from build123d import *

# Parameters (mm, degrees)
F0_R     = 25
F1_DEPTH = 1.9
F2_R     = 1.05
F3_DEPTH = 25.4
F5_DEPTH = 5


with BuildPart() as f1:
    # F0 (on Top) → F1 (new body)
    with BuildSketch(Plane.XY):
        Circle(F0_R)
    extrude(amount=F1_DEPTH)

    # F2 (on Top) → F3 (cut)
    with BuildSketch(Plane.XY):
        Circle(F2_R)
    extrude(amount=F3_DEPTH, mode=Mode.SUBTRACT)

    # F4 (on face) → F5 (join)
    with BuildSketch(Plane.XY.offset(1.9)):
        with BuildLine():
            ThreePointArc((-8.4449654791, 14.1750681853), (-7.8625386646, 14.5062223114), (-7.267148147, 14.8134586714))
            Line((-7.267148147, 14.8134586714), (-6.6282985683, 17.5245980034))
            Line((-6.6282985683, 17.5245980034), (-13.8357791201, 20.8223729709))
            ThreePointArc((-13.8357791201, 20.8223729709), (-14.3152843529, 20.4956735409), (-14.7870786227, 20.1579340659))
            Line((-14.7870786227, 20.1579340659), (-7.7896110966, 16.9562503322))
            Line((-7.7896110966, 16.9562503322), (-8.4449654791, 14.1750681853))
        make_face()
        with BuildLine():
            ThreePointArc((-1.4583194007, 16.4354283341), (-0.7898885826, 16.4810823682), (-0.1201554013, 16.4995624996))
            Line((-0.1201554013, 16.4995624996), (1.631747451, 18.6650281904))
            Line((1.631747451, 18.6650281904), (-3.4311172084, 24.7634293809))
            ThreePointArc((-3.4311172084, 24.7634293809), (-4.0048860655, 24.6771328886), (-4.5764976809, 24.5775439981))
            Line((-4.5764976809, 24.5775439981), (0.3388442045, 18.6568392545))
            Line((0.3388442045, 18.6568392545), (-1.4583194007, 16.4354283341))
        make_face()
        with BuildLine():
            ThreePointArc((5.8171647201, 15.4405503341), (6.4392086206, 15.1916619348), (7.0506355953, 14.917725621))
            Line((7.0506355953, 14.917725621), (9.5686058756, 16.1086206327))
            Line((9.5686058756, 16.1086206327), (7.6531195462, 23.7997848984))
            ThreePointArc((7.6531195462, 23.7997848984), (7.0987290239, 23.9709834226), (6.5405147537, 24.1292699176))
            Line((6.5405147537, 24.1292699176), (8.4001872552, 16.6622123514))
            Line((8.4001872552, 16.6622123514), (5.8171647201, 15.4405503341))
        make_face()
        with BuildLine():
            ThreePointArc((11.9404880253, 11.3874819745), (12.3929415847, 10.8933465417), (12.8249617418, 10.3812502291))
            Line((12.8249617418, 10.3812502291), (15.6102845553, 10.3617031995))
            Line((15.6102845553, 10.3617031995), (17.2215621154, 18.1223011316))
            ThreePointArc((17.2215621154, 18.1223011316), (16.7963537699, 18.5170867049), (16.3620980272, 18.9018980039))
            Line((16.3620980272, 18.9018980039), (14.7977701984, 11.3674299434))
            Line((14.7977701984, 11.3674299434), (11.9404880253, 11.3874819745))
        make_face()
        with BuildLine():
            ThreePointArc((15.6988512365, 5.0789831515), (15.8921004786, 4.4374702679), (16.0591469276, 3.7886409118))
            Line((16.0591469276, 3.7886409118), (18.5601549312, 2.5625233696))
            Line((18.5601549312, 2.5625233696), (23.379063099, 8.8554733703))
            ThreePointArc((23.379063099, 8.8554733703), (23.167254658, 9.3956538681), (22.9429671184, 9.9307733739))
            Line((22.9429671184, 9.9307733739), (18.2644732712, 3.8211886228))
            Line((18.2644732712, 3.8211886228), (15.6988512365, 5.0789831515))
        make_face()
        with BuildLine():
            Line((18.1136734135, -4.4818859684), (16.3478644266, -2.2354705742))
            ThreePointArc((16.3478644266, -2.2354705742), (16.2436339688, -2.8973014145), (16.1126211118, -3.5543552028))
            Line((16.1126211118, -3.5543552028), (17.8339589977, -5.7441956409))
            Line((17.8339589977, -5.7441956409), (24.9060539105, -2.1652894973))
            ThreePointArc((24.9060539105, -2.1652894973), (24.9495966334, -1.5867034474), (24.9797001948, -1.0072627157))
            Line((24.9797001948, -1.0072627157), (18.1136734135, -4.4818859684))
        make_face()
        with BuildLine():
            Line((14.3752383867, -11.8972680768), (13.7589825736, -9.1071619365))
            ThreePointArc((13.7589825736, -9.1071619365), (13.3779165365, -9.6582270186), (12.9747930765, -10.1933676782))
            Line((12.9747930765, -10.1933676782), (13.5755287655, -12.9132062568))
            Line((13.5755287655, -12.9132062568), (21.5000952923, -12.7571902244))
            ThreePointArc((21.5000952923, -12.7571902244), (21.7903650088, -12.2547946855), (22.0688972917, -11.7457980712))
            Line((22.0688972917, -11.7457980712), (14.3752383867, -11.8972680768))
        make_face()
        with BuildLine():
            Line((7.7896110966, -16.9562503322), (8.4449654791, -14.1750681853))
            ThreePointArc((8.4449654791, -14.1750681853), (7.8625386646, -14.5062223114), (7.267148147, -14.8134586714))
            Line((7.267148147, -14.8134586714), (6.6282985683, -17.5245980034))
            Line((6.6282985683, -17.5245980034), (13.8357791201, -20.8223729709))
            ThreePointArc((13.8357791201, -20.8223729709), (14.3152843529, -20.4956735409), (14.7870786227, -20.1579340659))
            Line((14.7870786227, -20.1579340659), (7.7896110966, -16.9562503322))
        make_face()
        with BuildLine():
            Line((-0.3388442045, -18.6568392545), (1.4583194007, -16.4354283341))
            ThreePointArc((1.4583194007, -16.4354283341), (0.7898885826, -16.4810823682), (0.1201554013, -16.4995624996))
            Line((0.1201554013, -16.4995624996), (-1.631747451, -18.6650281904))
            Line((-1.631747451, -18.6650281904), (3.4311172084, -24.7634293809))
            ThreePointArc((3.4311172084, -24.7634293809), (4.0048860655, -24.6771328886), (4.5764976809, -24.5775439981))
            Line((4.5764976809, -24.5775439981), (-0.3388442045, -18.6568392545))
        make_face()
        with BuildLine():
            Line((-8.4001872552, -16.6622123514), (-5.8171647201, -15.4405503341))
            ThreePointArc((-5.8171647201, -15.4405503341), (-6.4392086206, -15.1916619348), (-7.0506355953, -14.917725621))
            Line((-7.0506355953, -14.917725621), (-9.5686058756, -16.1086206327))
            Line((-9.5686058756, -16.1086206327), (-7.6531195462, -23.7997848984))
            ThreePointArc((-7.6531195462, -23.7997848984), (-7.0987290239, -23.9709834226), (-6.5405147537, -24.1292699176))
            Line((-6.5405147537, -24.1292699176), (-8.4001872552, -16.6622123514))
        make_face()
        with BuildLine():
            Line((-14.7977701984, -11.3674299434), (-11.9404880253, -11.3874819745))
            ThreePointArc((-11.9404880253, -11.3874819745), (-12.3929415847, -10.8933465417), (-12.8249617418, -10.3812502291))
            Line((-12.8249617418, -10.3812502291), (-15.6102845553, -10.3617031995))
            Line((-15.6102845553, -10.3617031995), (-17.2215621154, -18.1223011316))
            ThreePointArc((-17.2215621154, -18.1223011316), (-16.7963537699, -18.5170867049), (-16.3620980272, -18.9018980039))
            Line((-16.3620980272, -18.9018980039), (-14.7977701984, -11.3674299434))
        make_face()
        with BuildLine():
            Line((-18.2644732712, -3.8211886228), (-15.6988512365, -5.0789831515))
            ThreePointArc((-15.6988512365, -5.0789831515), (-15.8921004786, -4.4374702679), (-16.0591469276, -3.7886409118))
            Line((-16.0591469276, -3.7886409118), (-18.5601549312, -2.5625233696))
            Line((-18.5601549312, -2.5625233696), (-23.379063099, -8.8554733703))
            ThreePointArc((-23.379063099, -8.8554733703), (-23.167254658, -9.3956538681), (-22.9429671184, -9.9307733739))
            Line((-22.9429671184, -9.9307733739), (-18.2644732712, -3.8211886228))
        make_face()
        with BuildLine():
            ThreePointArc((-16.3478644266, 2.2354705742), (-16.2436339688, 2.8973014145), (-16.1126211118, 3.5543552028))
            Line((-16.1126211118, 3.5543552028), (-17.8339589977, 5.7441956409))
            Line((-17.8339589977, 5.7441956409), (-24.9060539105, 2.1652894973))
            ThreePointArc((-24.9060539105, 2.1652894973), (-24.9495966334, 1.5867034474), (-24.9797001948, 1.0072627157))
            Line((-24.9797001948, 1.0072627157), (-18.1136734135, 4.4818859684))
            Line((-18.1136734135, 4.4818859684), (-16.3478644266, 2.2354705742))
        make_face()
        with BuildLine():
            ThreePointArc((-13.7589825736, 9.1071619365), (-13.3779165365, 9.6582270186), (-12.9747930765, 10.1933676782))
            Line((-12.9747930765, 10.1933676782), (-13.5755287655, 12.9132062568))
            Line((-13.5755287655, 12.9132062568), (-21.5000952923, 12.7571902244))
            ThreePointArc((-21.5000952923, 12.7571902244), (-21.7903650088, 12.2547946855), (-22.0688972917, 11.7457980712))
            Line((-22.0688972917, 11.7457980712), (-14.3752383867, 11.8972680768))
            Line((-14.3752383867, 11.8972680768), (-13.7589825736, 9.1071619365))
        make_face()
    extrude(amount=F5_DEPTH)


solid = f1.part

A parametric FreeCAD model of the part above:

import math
import FreeCAD as App
import Part
import Sketcher

doc = App.newDocument("Part")
params = doc.addObject("Spreadsheet::Sheet", "Params")
for row, (alias, value) in enumerate([
    ("sketch1_diameter", "50 mm"),
    ("pad1_length", "1.9 mm"),
    ("sketch2_diameter", "2.1 mm"),
    ("pocket1_length", "25.4 mm"),
    ("sketch3_radius", "25 mm"),
    ("sketch3_radius2", "16.5 mm"),
    ("pad2_length", "5 mm"),
], start=1):
    params.set(f"A{row}", alias)
    params.set(f"B{row}", "=" + value)
    params.setAlias(f"B{row}", alias)

body = doc.addObject("PartDesign::Body", "Body")

# Sketch on XY plane
sketch1 = body.newObject("Sketcher::SketchObject", "Sketch")
sketch1.AttachmentSupport = (doc.getObject("XY_Plane"), [""])
sketch1.MapMode = "FlatFace"
sketch1.addGeometry(Part.Circle(App.Vector(0, 0, 0), App.Vector(0, 0, 1), 25), False)
sketch1.addConstraint(Sketcher.Constraint("Coincident", 0, 3, -1, 1))
sketch1.addConstraint(Sketcher.Constraint("Diameter", 0, 50.0))
sketch1.setExpression("Constraints[1]", "Params.sketch1_diameter")
pad1 = body.newObject("PartDesign::Pad", "Pad")
pad1.Profile = sketch1
pad1.setExpression("Length", "Params.pad1_length")

# Sketch on XY plane
sketch2 = body.newObject("Sketcher::SketchObject", "Sketch001")
sketch2.AttachmentSupport = (doc.getObject("XY_Plane"), [""])
sketch2.MapMode = "FlatFace"
sketch2.addGeometry(Part.Circle(App.Vector(0, 0, 0), App.Vector(0, 0, 1), 1.1), False)
sketch2.addConstraint(Sketcher.Constraint("Coincident", 0, 3, -1, 1))
sketch2.addConstraint(Sketcher.Constraint("Diameter", 0, 2.1))
sketch2.setExpression("Constraints[1]", "Params.sketch2_diameter")
pocket1 = body.newObject("PartDesign::Pocket", "Pocket")
pocket1.Profile = sketch2
pocket1.setExpression("Length", "Params.pocket1_length")
pocket1.Reversed = True

# Sketch on XY plane
sketch3 = body.newObject("Sketcher::SketchObject", "Sketch002")
sketch3.AttachmentSupport = (doc.getObject("XY_Plane"), [""])
sketch3.MapMode = "FlatFace"
sketch3.AttachmentOffset = App.Placement(App.Vector(0, 0, 1.9), App.Rotation())
sketch3.addGeometry(Part.ArcOfCircle(Part.Circle(App.Vector(0, 0, 0), App.Vector(0, 0, 1), 16.5), math.radians(116.13), math.radians(120.78)), False)
sketch3.addGeometry(Part.LineSegment(App.Vector(-7.3, 14.8, 0), App.Vector(-6.6, 17.5, 0)), False)
sketch3.addGeometry(Part.LineSegment(App.Vector(-6.6, 17.5, 0), App.Vector(-13.8, 20.8, 0)), False)
sketch3.addGeometry(Part.ArcOfCircle(Part.Circle(App.Vector(0, 0, 0), App.Vector(0, 0, 1), 25), math.radians(123.6), math.radians(126.26)), False)
sketch3.addGeometry(Part.LineSegment(App.Vector(-14.8, 20.2, 0), App.Vector(-7.8, 17, 0)), False)
sketch3.addGeometry(Part.LineSegment(App.Vector(-7.8, 17, 0), App.Vector(-8.4, 14.2, 0)), False)
sketch3.addGeometry(Part.ArcOfCircle(Part.Circle(App.Vector(0, 0, 0), App.Vector(0, 0, 1), 16.5), math.radians(90.42), math.radians(95.07)), False)
sketch3.addGeometry(Part.LineSegment(App.Vector(-0.1, 16.5, 0), App.Vector(1.6, 18.7, 0)), False)
sketch3.addGeometry(Part.LineSegment(App.Vector(1.6, 18.7, 0), App.Vector(-3.4, 24.8, 0)), False)
sketch3.addGeometry(Part.ArcOfCircle(Part.Circle(App.Vector(0, 0, 0), App.Vector(0, 0, 1), 25), math.radians(97.89), math.radians(100.55)), False)
sketch3.addGeometry(Part.LineSegment(App.Vector(-4.6, 24.6, 0), App.Vector(0.3, 18.7, 0)), False)
sketch3.addGeometry(Part.LineSegment(App.Vector(0.3, 18.7, 0), App.Vector(-1.5, 16.4, 0)), False)
sketch3.addGeometry(Part.ArcOfCircle(Part.Circle(App.Vector(0, 0, 0), App.Vector(0, 0, 1), 16.5), math.radians(64.7), math.radians(69.36)), False)
sketch3.addGeometry(Part.LineSegment(App.Vector(7.1, 14.9, 0), App.Vector(9.6, 16.1, 0)), False)
sketch3.addGeometry(Part.LineSegment(App.Vector(9.6, 16.1, 0), App.Vector(7.7, 23.8, 0)), False)
sketch3.addGeometry(Part.ArcOfCircle(Part.Circle(App.Vector(0, 0, 0), App.Vector(0, 0, 1), 25), math.radians(72.17), math.radians(74.83)), False)
sketch3.addGeometry(Part.LineSegment(App.Vector(6.5, 24.1, 0), App.Vector(8.4, 16.7, 0)), False)
sketch3.addGeometry(Part.LineSegment(App.Vector(8.4, 16.7, 0), App.Vector(5.8, 15.4, 0)), False)
sketch3.addGeometry(Part.ArcOfCircle(Part.Circle(App.Vector(0, 0, 0), App.Vector(0, 0, 1), 16.5), math.radians(38.99), math.radians(43.64)), False)
sketch3.addGeometry(Part.LineSegment(App.Vector(12.8, 10.4, 0), App.Vector(15.6, 10.4, 0)), False)
sketch3.addGeometry(Part.LineSegment(App.Vector(15.6, 10.4, 0), App.Vector(17.2, 18.1, 0)), False)
sketch3.addGeometry(Part.ArcOfCircle(Part.Circle(App.Vector(0, 0, 0), App.Vector(0, 0, 1), 25), math.radians(46.46), math.radians(49.12)), False)
sketch3.addGeometry(Part.LineSegment(App.Vector(16.4, 18.9, 0), App.Vector(14.8, 11.4, 0)), False)
sketch3.addGeometry(Part.LineSegment(App.Vector(14.8, 11.4, 0), App.Vector(11.9, 11.4, 0)), False)
sketch3.addGeometry(Part.ArcOfCircle(Part.Circle(App.Vector(0, 0, 0), App.Vector(0, 0, 1), 16.5), math.radians(13.27), math.radians(17.93)), False)
sketch3.addGeometry(Part.LineSegment(App.Vector(16.1, 3.8, 0), App.Vector(18.6, 2.6, 0)), False)
sketch3.addGeometry(Part.LineSegment(App.Vector(18.6, 2.6, 0), App.Vector(23.4, 8.9, 0)), False)
sketch3.addGeometry(Part.ArcOfCircle(Part.Circle(App.Vector(0, 0, 0), App.Vector(0, 0, 1), 25), math.radians(20.75), math.radians(23.41)), False)
sketch3.addGeometry(Part.LineSegment(App.Vector(22.9, 9.9, 0), App.Vector(18.3, 3.8, 0)), False)
sketch3.addGeometry(Part.LineSegment(App.Vector(18.3, 3.8, 0), App.Vector(15.7, 5.1, 0)), False)
sketch3.addGeometry(Part.LineSegment(App.Vector(18.1, -4.5, 0), App.Vector(16.3, -2.2, 0)), False)
sketch3.addGeometry(Part.ArcOfCircle(Part.Circle(App.Vector(0, 0, 0), App.Vector(0, 0, 1), 16.5), math.radians(-12.44), math.radians(-7.79)), False)
sketch3.addGeometry(Part.LineSegment(App.Vector(16.1, -3.6, 0), App.Vector(17.8, -5.7, 0)), False)
sketch3.addGeometry(Part.LineSegment(App.Vector(17.8, -5.7, 0), App.Vector(24.9, -2.2, 0)), False)
sketch3.addGeometry(Part.ArcOfCircle(Part.Circle(App.Vector(0, 0, 0), App.Vector(0, 0, 1), 25), math.radians(-4.97), math.radians(-2.31)), False)
sketch3.addGeometry(Part.LineSegment(App.Vector(25, -1, 0), App.Vector(18.1, -4.5, 0)), False)
sketch3.addGeometry(Part.LineSegment(App.Vector(14.4, -11.9, 0), App.Vector(13.8, -9.1, 0)), False)
sketch3.addGeometry(Part.ArcOfCircle(Part.Circle(App.Vector(0, 0, 0), App.Vector(0, 0, 1), 16.5), math.radians(-38.15), math.radians(-33.5)), False)
sketch3.addGeometry(Part.LineSegment(App.Vector(13, -10.2, 0), App.Vector(13.6, -12.9, 0)), False)
sketch3.addGeometry(Part.LineSegment(App.Vector(13.6, -12.9, 0), App.Vector(21.5, -12.8, 0)), False)
sketch3.addGeometry(Part.ArcOfCircle(Part.Circle(App.Vector(0, 0, 0), App.Vector(0, 0, 1), 25), math.radians(-30.68), math.radians(-28.02)), False)
sketch3.addGeometry(Part.LineSegment(App.Vector(22.1, -11.7, 0), App.Vector(14.4, -11.9, 0)), False)
sketch3.addGeometry(Part.LineSegment(App.Vector(7.8, -17, 0), App.Vector(8.4, -14.2, 0)), False)
sketch3.addGeometry(Part.ArcOfCircle(Part.Circle(App.Vector(0, 0, 0), App.Vector(0, 0, 1), 16.5), math.radians(-63.87), math.radians(-59.22)), False)
sketch3.addGeometry(Part.LineSegment(App.Vector(7.3, -14.8, 0), App.Vector(6.6, -17.5, 0)), False)
sketch3.addGeometry(Part.LineSegment(App.Vector(6.6, -17.5, 0), App.Vector(13.8, -20.8, 0)), False)
sketch3.addGeometry(Part.ArcOfCircle(Part.Circle(App.Vector(0, 0, 0), App.Vector(0, 0, 1), 25), math.radians(-56.4), math.radians(-53.74)), False)
sketch3.addGeometry(Part.LineSegment(App.Vector(14.8, -20.2, 0), App.Vector(7.8, -17, 0)), False)
sketch3.addGeometry(Part.LineSegment(App.Vector(-0.3, -18.7, 0), App.Vector(1.5, -16.4, 0)), False)
sketch3.addGeometry(Part.ArcOfCircle(Part.Circle(App.Vector(0, 0, 0), App.Vector(0, 0, 1), 16.5), math.radians(-89.58), math.radians(-84.93)), False)
sketch3.addGeometry(Part.LineSegment(App.Vector(0.1, -16.5, 0), App.Vector(-1.6, -18.7, 0)), False)
sketch3.addGeometry(Part.LineSegment(App.Vector(-1.6, -18.7, 0), App.Vector(3.4, -24.8, 0)), False)
sketch3.addGeometry(Part.ArcOfCircle(Part.Circle(App.Vector(0, 0, 0), App.Vector(0, 0, 1), 25), math.radians(-82.11), math.radians(-79.45)), False)
sketch3.addGeometry(Part.LineSegment(App.Vector(4.6, -24.6, 0), App.Vector(-0.3, -18.7, 0)), False)
sketch3.addGeometry(Part.LineSegment(App.Vector(-8.4, -16.7, 0), App.Vector(-5.8, -15.4, 0)), False)
sketch3.addGeometry(Part.ArcOfCircle(Part.Circle(App.Vector(0, 0, 0), App.Vector(0, 0, 1), 16.5), math.radians(-115.3), math.radians(-110.64)), False)
sketch3.addGeometry(Part.LineSegment(App.Vector(-7.1, -14.9, 0), App.Vector(-9.6, -16.1, 0)), False)
sketch3.addGeometry(Part.LineSegment(App.Vector(-9.6, -16.1, 0), App.Vector(-7.7, -23.8, 0)), False)
sketch3.addGeometry(Part.ArcOfCircle(Part.Circle(App.Vector(0, 0, 0), App.Vector(0, 0, 1), 25), math.radians(-107.83), math.radians(-105.17)), False)
sketch3.addGeometry(Part.LineSegment(App.Vector(-6.5, -24.1, 0), App.Vector(-8.4, -16.7, 0)), False)
sketch3.addGeometry(Part.LineSegment(App.Vector(-14.8, -11.4, 0), App.Vector(-11.9, -11.4, 0)), False)
sketch3.addGeometry(Part.ArcOfCircle(Part.Circle(App.Vector(0, 0, 0), App.Vector(0, 0, 1), 16.5), math.radians(-141.01), math.radians(-136.36)), False)
sketch3.addGeometry(Part.LineSegment(App.Vector(-12.8, -10.4, 0), App.Vector(-15.6, -10.4, 0)), False)
sketch3.addGeometry(Part.LineSegment(App.Vector(-15.6, -10.4, 0), App.Vector(-17.2, -18.1, 0)), False)
sketch3.addGeometry(Part.ArcOfCircle(Part.Circle(App.Vector(0, 0, 0), App.Vector(0, 0, 1), 25), math.radians(-133.54), math.radians(-130.88)), False)
sketch3.addGeometry(Part.LineSegment(App.Vector(-16.4, -18.9, 0), App.Vector(-14.8, -11.4, 0)), False)
sketch3.addGeometry(Part.LineSegment(App.Vector(-18.3, -3.8, 0), App.Vector(-15.7, -5.1, 0)), False)
sketch3.addGeometry(Part.ArcOfCircle(Part.Circle(App.Vector(0, 0, 0), App.Vector(0, 0, 1), 16.5), math.radians(-166.73), math.radians(-162.07)), False)
sketch3.addGeometry(Part.LineSegment(App.Vector(-16.1, -3.8, 0), App.Vector(-18.6, -2.6, 0)), False)
sketch3.addGeometry(Part.LineSegment(App.Vector(-18.6, -2.6, 0), App.Vector(-23.4, -8.9, 0)), False)
sketch3.addGeometry(Part.ArcOfCircle(Part.Circle(App.Vector(0, 0, 0), App.Vector(0, 0, 1), 25), math.radians(-159.25), math.radians(-156.59)), False)
sketch3.addGeometry(Part.LineSegment(App.Vector(-22.9, -9.9, 0), App.Vector(-18.3, -3.8, 0)), False)
sketch3.addGeometry(Part.ArcOfCircle(Part.Circle(App.Vector(0, 0, 0), App.Vector(0, 0, 1), 16.5), math.radians(167.56), math.radians(172.21)), False)
sketch3.addGeometry(Part.LineSegment(App.Vector(-16.1, 3.6, 0), App.Vector(-17.8, 5.7, 0)), False)
sketch3.addGeometry(Part.LineSegment(App.Vector(-17.8, 5.7, 0), App.Vector(-24.9, 2.2, 0)), False)
sketch3.addGeometry(Part.ArcOfCircle(Part.Circle(App.Vector(0, 0, 0), App.Vector(0, 0, 1), 25), math.radians(175.03), math.radians(177.69)), False)
sketch3.addGeometry(Part.LineSegment(App.Vector(-25, 1, 0), App.Vector(-18.1, 4.5, 0)), False)
sketch3.addGeometry(Part.LineSegment(App.Vector(-18.1, 4.5, 0), App.Vector(-16.3, 2.2, 0)), False)
sketch3.addGeometry(Part.ArcOfCircle(Part.Circle(App.Vector(0, 0, 0), App.Vector(0, 0, 1), 16.5), math.radians(141.85), math.radians(146.5)), False)
sketch3.addGeometry(Part.LineSegment(App.Vector(-13, 10.2, 0), App.Vector(-13.6, 12.9, 0)), False)
sketch3.addGeometry(Part.LineSegment(App.Vector(-13.6, 12.9, 0), App.Vector(-21.5, 12.8, 0)), False)
sketch3.addGeometry(Part.ArcOfCircle(Part.Circle(App.Vector(0, 0, 0), App.Vector(0, 0, 1), 25), math.radians(149.32), math.radians(151.98)), False)
sketch3.addGeometry(Part.LineSegment(App.Vector(-22.1, 11.7, 0), App.Vector(-14.4, 11.9, 0)), False)
sketch3.addGeometry(Part.LineSegment(App.Vector(-14.4, 11.9, 0), App.Vector(-13.8, 9.1, 0)), False)
sketch3.addConstraint(Sketcher.Constraint("Coincident", 0, 1, 1, 1))
sketch3.addConstraint(Sketcher.Constraint("Coincident", 1, 2, 2, 1))
sketch3.addConstraint(Sketcher.Constraint("Coincident", 2, 2, 3, 1))
sketch3.addConstraint(Sketcher.Constraint("Coincident", 3, 2, 4, 1))
sketch3.addConstraint(Sketcher.Constraint("Coincident", 4, 2, 5, 1))
sketch3.addConstraint(Sketcher.Constraint("Coincident", 5, 2, 0, 2))
sketch3.addConstraint(Sketcher.Constraint("Coincident", 6, 1, 7, 1))
sketch3.addConstraint(Sketcher.Constraint("Coincident", 7, 2, 8, 1))
sketch3.addConstraint(Sketcher.Constraint("Coincident", 8, 2, 9, 1))
sketch3.addConstraint(Sketcher.Constraint("Coincident", 9, 2, 10, 1))
sketch3.addConstraint(Sketcher.Constraint("Coincident", 10, 2, 11, 1))
sketch3.addConstraint(Sketcher.Constraint("Coincident", 11, 2, 6, 2))
sketch3.addConstraint(Sketcher.Constraint("Coincident", 12, 1, 13, 1))
sketch3.addConstraint(Sketcher.Constraint("Coincident", 13, 2, 14, 1))
sketch3.addConstraint(Sketcher.Constraint("Coincident", 14, 2, 15, 1))
sketch3.addConstraint(Sketcher.Constraint("Coincident", 15, 2, 16, 1))
sketch3.addConstraint(Sketcher.Constraint("Coincident", 16, 2, 17, 1))
sketch3.addConstraint(Sketcher.Constraint("Coincident", 17, 2, 12, 2))
sketch3.addConstraint(Sketcher.Constraint("Coincident", 18, 1, 19, 1))
sketch3.addConstraint(Sketcher.Constraint("Coincident", 19, 2, 20, 1))
sketch3.addConstraint(Sketcher.Constraint("Coincident", 20, 2, 21, 1))
sketch3.addConstraint(Sketcher.Constraint("Coincident", 21, 2, 22, 1))
sketch3.addConstraint(Sketcher.Constraint("Coincident", 22, 2, 23, 1))
sketch3.addConstraint(Sketcher.Constraint("Coincident", 23, 2, 18, 2))
sketch3.addConstraint(Sketcher.Constraint("Coincident", 24, 1, 25, 1))
sketch3.addConstraint(Sketcher.Constraint("Coincident", 25, 2, 26, 1))
sketch3.addConstraint(Sketcher.Constraint("Coincident", 26, 2, 27, 1))
sketch3.addConstraint(Sketcher.Constraint("Coincident", 27, 2, 28, 1))
sketch3.addConstraint(Sketcher.Constraint("Coincident", 28, 2, 29, 1))
sketch3.addConstraint(Sketcher.Constraint("Coincident", 29, 2, 24, 2))
sketch3.addConstraint(Sketcher.Constraint("Coincident", 30, 2, 31, 2))
sketch3.addConstraint(Sketcher.Constraint("Coincident", 31, 1, 32, 1))
sketch3.addConstraint(Sketcher.Constraint("Coincident", 32, 2, 33, 1))
sketch3.addConstraint(Sketcher.Constraint("Coincident", 33, 2, 34, 1))
sketch3.addConstraint(Sketcher.Constraint("Coincident", 34, 2, 35, 1))
sketch3.addConstraint(Sketcher.Constraint("Coincident", 35, 2, 30, 1))
sketch3.addConstraint(Sketcher.Constraint("Coincident", 36, 2, 37, 2))
sketch3.addConstraint(Sketcher.Constraint("Coincident", 37, 1, 38, 1))
sketch3.addConstraint(Sketcher.Constraint("Coincident", 38, 2, 39, 1))
sketch3.addConstraint(Sketcher.Constraint("Coincident", 39, 2, 40, 1))
sketch3.addConstraint(Sketcher.Constraint("Coincident", 40, 2, 41, 1))
sketch3.addConstraint(Sketcher.Constraint("Coincident", 41, 2, 36, 1))
sketch3.addConstraint(Sketcher.Constraint("Coincident", 42, 2, 43, 2))
sketch3.addConstraint(Sketcher.Constraint("Coincident", 43, 1, 44, 1))
sketch3.addConstraint(Sketcher.Constraint("Coincident", 44, 2, 45, 1))
sketch3.addConstraint(Sketcher.Constraint("Coincident", 45, 2, 46, 1))
sketch3.addConstraint(Sketcher.Constraint("Coincident", 46, 2, 47, 1))
sketch3.addConstraint(Sketcher.Constraint("Coincident", 47, 2, 42, 1))
sketch3.addConstraint(Sketcher.Constraint("Coincident", 48, 2, 49, 2))
sketch3.addConstraint(Sketcher.Constraint("Coincident", 49, 1, 50, 1))
sketch3.addConstraint(Sketcher.Constraint("Coincident", 50, 2, 51, 1))
sketch3.addConstraint(Sketcher.Constraint("Coincident", 51, 2, 52, 1))
sketch3.addConstraint(Sketcher.Constraint("Coincident", 52, 2, 53, 1))
sketch3.addConstraint(Sketcher.Constraint("Coincident", 53, 2, 48, 1))
sketch3.addConstraint(Sketcher.Constraint("Coincident", 54, 2, 55, 2))
sketch3.addConstraint(Sketcher.Constraint("Coincident", 55, 1, 56, 1))
sketch3.addConstraint(Sketcher.Constraint("Coincident", 56, 2, 57, 1))
sketch3.addConstraint(Sketcher.Constraint("Coincident", 57, 2, 58, 1))
sketch3.addConstraint(Sketcher.Constraint("Coincident", 58, 2, 59, 1))
sketch3.addConstraint(Sketcher.Constraint("Coincident", 59, 2, 54, 1))
sketch3.addConstraint(Sketcher.Constraint("Coincident", 60, 2, 61, 2))
sketch3.addConstraint(Sketcher.Constraint("Coincident", 61, 1, 62, 1))
sketch3.addConstraint(Sketcher.Constraint("Coincident", 62, 2, 63, 1))
sketch3.addConstraint(Sketcher.Constraint("Coincident", 63, 2, 64, 1))
sketch3.addConstraint(Sketcher.Constraint("Coincident", 64, 2, 65, 1))
sketch3.addConstraint(Sketcher.Constraint("Coincident", 65, 2, 60, 1))
sketch3.addConstraint(Sketcher.Constraint("Coincident", 66, 2, 67, 2))
sketch3.addConstraint(Sketcher.Constraint("Coincident", 67, 1, 68, 1))
sketch3.addConstraint(Sketcher.Constraint("Coincident", 68, 2, 69, 1))
sketch3.addConstraint(Sketcher.Constraint("Coincident", 69, 2, 70, 1))
sketch3.addConstraint(Sketcher.Constraint("Coincident", 70, 2, 71, 1))
sketch3.addConstraint(Sketcher.Constraint("Coincident", 71, 2, 66, 1))
sketch3.addConstraint(Sketcher.Constraint("Coincident", 72, 1, 73, 1))
sketch3.addConstraint(Sketcher.Constraint("Coincident", 73, 2, 74, 1))
sketch3.addConstraint(Sketcher.Constraint("Coincident", 74, 2, 75, 1))
sketch3.addConstraint(Sketcher.Constraint("Coincident", 75, 2, 76, 1))
sketch3.addConstraint(Sketcher.Constraint("Coincident", 76, 2, 77, 1))
sketch3.addConstraint(Sketcher.Constraint("Coincident", 77, 2, 72, 2))
sketch3.addConstraint(Sketcher.Constraint("Coincident", 78, 1, 79, 1))
sketch3.addConstraint(Sketcher.Constraint("Coincident", 79, 2, 80, 1))
sketch3.addConstraint(Sketcher.Constraint("Coincident", 80, 2, 81, 1))
sketch3.addConstraint(Sketcher.Constraint("Coincident", 81, 2, 82, 1))
sketch3.addConstraint(Sketcher.Constraint("Coincident", 82, 2, 83, 1))
sketch3.addConstraint(Sketcher.Constraint("Coincident", 83, 2, 78, 2))
sketch3.addConstraint(Sketcher.Constraint("Coincident", 0, 3, -1, 1))
sketch3.addConstraint(Sketcher.Constraint("Coincident", 3, 3, -1, 1))
sketch3.addConstraint(Sketcher.Constraint("Coincident", 6, 3, -1, 1))
sketch3.addConstraint(Sketcher.Constraint("Coincident", 9, 3, -1, 1))
sketch3.addConstraint(Sketcher.Constraint("Coincident", 12, 3, -1, 1))
sketch3.addConstraint(Sketcher.Constraint("Coincident", 15, 3, -1, 1))
sketch3.addConstraint(Sketcher.Constraint("Coincident", 18, 3, -1, 1))
sketch3.addConstraint(Sketcher.Constraint("Coincident", 21, 3, -1, 1))
sketch3.addConstraint(Sketcher.Constraint("Coincident", 24, 3, -1, 1))
sketch3.addConstraint(Sketcher.Constraint("Coincident", 27, 3, -1, 1))
sketch3.addConstraint(Sketcher.Constraint("Coincident", 31, 3, -1, 1))
sketch3.addConstraint(Sketcher.Constraint("Coincident", 34, 3, -1, 1))
sketch3.addConstraint(Sketcher.Constraint("Coincident", 37, 3, -1, 1))
sketch3.addConstraint(Sketcher.Constraint("Coincident", 40, 3, -1, 1))
sketch3.addConstraint(Sketcher.Constraint("Coincident", 43, 3, -1, 1))
sketch3.addConstraint(Sketcher.Constraint("Coincident", 46, 3, -1, 1))
sketch3.addConstraint(Sketcher.Constraint("Coincident", 49, 3, -1, 1))
sketch3.addConstraint(Sketcher.Constraint("Coincident", 52, 3, -1, 1))
sketch3.addConstraint(Sketcher.Constraint("Coincident", 55, 3, -1, 1))
sketch3.addConstraint(Sketcher.Constraint("Coincident", 58, 3, -1, 1))
sketch3.addConstraint(Sketcher.Constraint("Coincident", 61, 3, -1, 1))
sketch3.addConstraint(Sketcher.Constraint("Coincident", 64, 3, -1, 1))
sketch3.addConstraint(Sketcher.Constraint("Coincident", 67, 3, -1, 1))
sketch3.addConstraint(Sketcher.Constraint("Coincident", 70, 3, -1, 1))
sketch3.addConstraint(Sketcher.Constraint("Coincident", 72, 3, -1, 1))
sketch3.addConstraint(Sketcher.Constraint("Coincident", 75, 3, -1, 1))
sketch3.addConstraint(Sketcher.Constraint("Coincident", 78, 3, -1, 1))
sketch3.addConstraint(Sketcher.Constraint("Coincident", 81, 3, -1, 1))
sketch3.addConstraint(Sketcher.Constraint("Equal", 0, 6))
sketch3.addConstraint(Sketcher.Constraint("Equal", 3, 9))
sketch3.addConstraint(Sketcher.Constraint("Equal", 6, 12))
sketch3.addConstraint(Sketcher.Constraint("Equal", 9, 15))
sketch3.addConstraint(Sketcher.Constraint("Equal", 12, 18))
sketch3.addConstraint(Sketcher.Constraint("Equal", 15, 21))
sketch3.addConstraint(Sketcher.Constraint("Equal", 18, 24))
sketch3.addConstraint(Sketcher.Constraint("Equal", 21, 27))
sketch3.addConstraint(Sketcher.Constraint("Equal", 24, 31))
sketch3.addConstraint(Sketcher.Constraint("Equal", 27, 34))
sketch3.addConstraint(Sketcher.Constraint("Equal", 31, 37))
sketch3.addConstraint(Sketcher.Constraint("Equal", 34, 40))
sketch3.addConstraint(Sketcher.Constraint("Equal", 37, 43))
sketch3.addConstraint(Sketcher.Constraint("Equal", 40, 46))
sketch3.addConstraint(Sketcher.Constraint("Equal", 43, 49))
sketch3.addConstraint(Sketcher.Constraint("Equal", 46, 52))
sketch3.addConstraint(Sketcher.Constraint("Equal", 49, 55))
sketch3.addConstraint(Sketcher.Constraint("Equal", 52, 58))
sketch3.addConstraint(Sketcher.Constraint("Equal", 55, 61))
sketch3.addConstraint(Sketcher.Constraint("Equal", 58, 64))
sketch3.addConstraint(Sketcher.Constraint("Equal", 61, 67))
sketch3.addConstraint(Sketcher.Constraint("Equal", 64, 70))
sketch3.addConstraint(Sketcher.Constraint("Equal", 67, 72))
sketch3.addConstraint(Sketcher.Constraint("Equal", 70, 75))
sketch3.addConstraint(Sketcher.Constraint("Equal", 72, 78))
sketch3.addConstraint(Sketcher.Constraint("Equal", 75, 81))
sketch3.addConstraint(Sketcher.Constraint("Symmetric", 1, 2, 44, 2, -1, 1))
sketch3.addConstraint(Sketcher.Constraint("Symmetric", 4, 2, 47, 2, -1, 1))
sketch3.addConstraint(Sketcher.Constraint("Symmetric", 7, 2, 50, 2, -1, 1))
sketch3.addConstraint(Sketcher.Constraint("Symmetric", 10, 2, 53, 2, -1, 1))
sketch3.addConstraint(Sketcher.Constraint("Symmetric", 13, 2, 56, 2, -1, 1))
sketch3.addConstraint(Sketcher.Constraint("Symmetric", 16, 2, 59, 2, -1, 1))
sketch3.addConstraint(Sketcher.Constraint("Symmetric", 19, 2, 62, 2, -1, 1))
sketch3.addConstraint(Sketcher.Constraint("Symmetric", 22, 2, 65, 2, -1, 1))
sketch3.addConstraint(Sketcher.Constraint("Symmetric", 25, 2, 68, 2, -1, 1))
sketch3.addConstraint(Sketcher.Constraint("Symmetric", 28, 2, 71, 2, -1, 1))
sketch3.addConstraint(Sketcher.Constraint("Symmetric", 32, 2, 73, 2, -1, 1))
sketch3.addConstraint(Sketcher.Constraint("Symmetric", 35, 2, 76, 2, -1, 1))
sketch3.addConstraint(Sketcher.Constraint("Symmetric", 38, 2, 79, 2, -1, 1))
sketch3.addConstraint(Sketcher.Constraint("Symmetric", 41, 2, 82, 2, -1, 1))
sketch3.addConstraint(Sketcher.Constraint("Parallel", 2, 4))
sketch3.addConstraint(Sketcher.Constraint("Parallel", 1, 5))
sketch3.addConstraint(Sketcher.Constraint("Parallel", 8, 10))
sketch3.addConstraint(Sketcher.Constraint("Parallel", 7, 11))
sketch3.addConstraint(Sketcher.Constraint("Parallel", 14, 16))
sketch3.addConstraint(Sketcher.Constraint("Parallel", 13, 17))
sketch3.addConstraint(Sketcher.Constraint("Parallel", 20, 22))
sketch3.addConstraint(Sketcher.Constraint("Parallel", 19, 23))
sketch3.addConstraint(Sketcher.Constraint("Parallel", 26, 28))
sketch3.addConstraint(Sketcher.Constraint("Parallel", 25, 29))
sketch3.addConstraint(Sketcher.Constraint("Parallel", 30, 32))
sketch3.addConstraint(Sketcher.Constraint("Parallel", 33, 35))
sketch3.addConstraint(Sketcher.Constraint("Parallel", 36, 38))
sketch3.addConstraint(Sketcher.Constraint("Parallel", 39, 41))
sketch3.addConstraint(Sketcher.Constraint("Parallel", 5, 42))
sketch3.addConstraint(Sketcher.Constraint("Parallel", 42, 44))
sketch3.addConstraint(Sketcher.Constraint("Parallel", 4, 45))
sketch3.addConstraint(Sketcher.Constraint("Parallel", 45, 47))
sketch3.addConstraint(Sketcher.Constraint("Parallel", 11, 48))
sketch3.addConstraint(Sketcher.Constraint("Parallel", 48, 50))
sketch3.addConstraint(Sketcher.Constraint("Parallel", 10, 51))
sketch3.addConstraint(Sketcher.Constraint("Parallel", 51, 53))
sketch3.addConstraint(Sketcher.Constraint("Parallel", 17, 54))
sketch3.addConstraint(Sketcher.Constraint("Parallel", 54, 56))
sketch3.addConstraint(Sketcher.Constraint("Parallel", 16, 57))
sketch3.addConstraint(Sketcher.Constraint("Parallel", 57, 59))
sketch3.addConstraint(Sketcher.Constraint("Parallel", 23, 60))
sketch3.addConstraint(Sketcher.Constraint("Parallel", 60, 62))
sketch3.addConstraint(Sketcher.Constraint("Parallel", 22, 63))
sketch3.addConstraint(Sketcher.Constraint("Parallel", 63, 65))
sketch3.addConstraint(Sketcher.Constraint("Parallel", 29, 66))
sketch3.addConstraint(Sketcher.Constraint("Parallel", 66, 68))
sketch3.addConstraint(Sketcher.Constraint("Parallel", 28, 69))
sketch3.addConstraint(Sketcher.Constraint("Parallel", 69, 71))
sketch3.addConstraint(Sketcher.Constraint("Parallel", 32, 73))
sketch3.addConstraint(Sketcher.Constraint("Parallel", 35, 74))
sketch3.addConstraint(Sketcher.Constraint("Parallel", 74, 76))
sketch3.addConstraint(Sketcher.Constraint("Parallel", 73, 77))
sketch3.addConstraint(Sketcher.Constraint("Parallel", 38, 79))
sketch3.addConstraint(Sketcher.Constraint("Parallel", 41, 80))
sketch3.addConstraint(Sketcher.Constraint("Parallel", 80, 82))
sketch3.addConstraint(Sketcher.Constraint("Parallel", 79, 83))
sketch3.addConstraint(Sketcher.Constraint("Equal", 1, 7))
sketch3.addConstraint(Sketcher.Constraint("Equal", 2, 8))
sketch3.addConstraint(Sketcher.Constraint("Equal", 4, 10))
sketch3.addConstraint(Sketcher.Constraint("Equal", 5, 11))
sketch3.addConstraint(Sketcher.Constraint("Equal", 7, 13))
sketch3.addConstraint(Sketcher.Constraint("Equal", 8, 14))
sketch3.addConstraint(Sketcher.Constraint("Equal", 10, 16))
sketch3.addConstraint(Sketcher.Constraint("Equal", 11, 17))
sketch3.addConstraint(Sketcher.Constraint("Equal", 13, 19))
sketch3.addConstraint(Sketcher.Constraint("Equal", 14, 20))
sketch3.addConstraint(Sketcher.Constraint("Equal", 16, 22))
sketch3.addConstraint(Sketcher.Constraint("Equal", 17, 23))
sketch3.addConstraint(Sketcher.Constraint("Equal", 19, 25))
sketch3.addConstraint(Sketcher.Constraint("Equal", 20, 26))
sketch3.addConstraint(Sketcher.Constraint("Equal", 22, 28))
sketch3.addConstraint(Sketcher.Constraint("Equal", 23, 29))
sketch3.addConstraint(Sketcher.Constraint("Equal", 29, 30))
sketch3.addConstraint(Sketcher.Constraint("Equal", 25, 32))
sketch3.addConstraint(Sketcher.Constraint("Equal", 26, 33))
sketch3.addConstraint(Sketcher.Constraint("Equal", 28, 35))
sketch3.addConstraint(Sketcher.Constraint("Equal", 30, 36))
sketch3.addConstraint(Sketcher.Constraint("Equal", 32, 38))
sketch3.addConstraint(Sketcher.Constraint("Equal", 33, 39))
sketch3.addConstraint(Sketcher.Constraint("Equal", 35, 41))
sketch3.addConstraint(Sketcher.Constraint("Radius", 3, 25.0))
sketch3.addConstraint(Sketcher.Constraint("Radius", 0, 16.5))
sketch3.addConstraint(Sketcher.Constraint("DistanceX", 1, 2, -1, 1, 6.628299))
sketch3.addConstraint(Sketcher.Constraint("DistanceY", -1, 1, 1, 2, 17.524598))
sketch3.addConstraint(Sketcher.Constraint("DistanceY", -1, 1, 20, 2, 18.122301))
sketch3.addConstraint(Sketcher.Constraint("DistanceX", -1, 1, 21, 2, 16.362098))
sketch3.addConstraint(Sketcher.Constraint("DistanceX", -1, 1, 34, 2, 24.9797))
sketch3.addConstraint(Sketcher.Constraint("DistanceY", 40, 2, -1, 1, 11.745798))
sketch3.addConstraint(Sketcher.Constraint("Distance", 1, 2.785391))
sketch3.addConstraint(Sketcher.Constraint("Distance", 4, 7.69515))
sketch3.addConstraint(Sketcher.Constraint("DistanceX", 2, 2, -1, 1, 13.835779))
sketch3.addConstraint(Sketcher.Constraint("DistanceX", 3, 2, -1, 1, 14.787079))
sketch3.addConstraint(Sketcher.Constraint("DistanceY", -1, 1, 7, 2, 18.665028))
sketch3.addConstraint(Sketcher.Constraint("DistanceY", -1, 1, 8, 2, 24.763429))
sketch3.addConstraint(Sketcher.Constraint("DistanceY", -1, 1, 13, 2, 16.108621))
sketch3.addConstraint(Sketcher.Constraint("DistanceX", -1, 1, 14, 2, 7.65312))
sketch3.addConstraint(Sketcher.Constraint("DistanceY", -1, 1, 24, 1, 3.788641))
sketch3.addConstraint(Sketcher.Constraint("DistanceY", -1, 1, 28, 2, 3.821189))
sketch3.addConstraint(Sketcher.Constraint("DistanceY", 30, 2, -1, 1, 2.235471))
sketch3.addConstraint(Sketcher.Constraint("DistanceY", 36, 2, -1, 1, 9.107162))
sketch3.setExpression("Constraints[218]", "Params.sketch3_radius")
sketch3.setExpression("Constraints[219]", "Params.sketch3_radius2")
pad2 = body.newObject("PartDesign::Pad", "Pad001")
pad2.Profile = sketch3
pad2.setExpression("Length", "Params.pad2_length")

doc.recompute()
